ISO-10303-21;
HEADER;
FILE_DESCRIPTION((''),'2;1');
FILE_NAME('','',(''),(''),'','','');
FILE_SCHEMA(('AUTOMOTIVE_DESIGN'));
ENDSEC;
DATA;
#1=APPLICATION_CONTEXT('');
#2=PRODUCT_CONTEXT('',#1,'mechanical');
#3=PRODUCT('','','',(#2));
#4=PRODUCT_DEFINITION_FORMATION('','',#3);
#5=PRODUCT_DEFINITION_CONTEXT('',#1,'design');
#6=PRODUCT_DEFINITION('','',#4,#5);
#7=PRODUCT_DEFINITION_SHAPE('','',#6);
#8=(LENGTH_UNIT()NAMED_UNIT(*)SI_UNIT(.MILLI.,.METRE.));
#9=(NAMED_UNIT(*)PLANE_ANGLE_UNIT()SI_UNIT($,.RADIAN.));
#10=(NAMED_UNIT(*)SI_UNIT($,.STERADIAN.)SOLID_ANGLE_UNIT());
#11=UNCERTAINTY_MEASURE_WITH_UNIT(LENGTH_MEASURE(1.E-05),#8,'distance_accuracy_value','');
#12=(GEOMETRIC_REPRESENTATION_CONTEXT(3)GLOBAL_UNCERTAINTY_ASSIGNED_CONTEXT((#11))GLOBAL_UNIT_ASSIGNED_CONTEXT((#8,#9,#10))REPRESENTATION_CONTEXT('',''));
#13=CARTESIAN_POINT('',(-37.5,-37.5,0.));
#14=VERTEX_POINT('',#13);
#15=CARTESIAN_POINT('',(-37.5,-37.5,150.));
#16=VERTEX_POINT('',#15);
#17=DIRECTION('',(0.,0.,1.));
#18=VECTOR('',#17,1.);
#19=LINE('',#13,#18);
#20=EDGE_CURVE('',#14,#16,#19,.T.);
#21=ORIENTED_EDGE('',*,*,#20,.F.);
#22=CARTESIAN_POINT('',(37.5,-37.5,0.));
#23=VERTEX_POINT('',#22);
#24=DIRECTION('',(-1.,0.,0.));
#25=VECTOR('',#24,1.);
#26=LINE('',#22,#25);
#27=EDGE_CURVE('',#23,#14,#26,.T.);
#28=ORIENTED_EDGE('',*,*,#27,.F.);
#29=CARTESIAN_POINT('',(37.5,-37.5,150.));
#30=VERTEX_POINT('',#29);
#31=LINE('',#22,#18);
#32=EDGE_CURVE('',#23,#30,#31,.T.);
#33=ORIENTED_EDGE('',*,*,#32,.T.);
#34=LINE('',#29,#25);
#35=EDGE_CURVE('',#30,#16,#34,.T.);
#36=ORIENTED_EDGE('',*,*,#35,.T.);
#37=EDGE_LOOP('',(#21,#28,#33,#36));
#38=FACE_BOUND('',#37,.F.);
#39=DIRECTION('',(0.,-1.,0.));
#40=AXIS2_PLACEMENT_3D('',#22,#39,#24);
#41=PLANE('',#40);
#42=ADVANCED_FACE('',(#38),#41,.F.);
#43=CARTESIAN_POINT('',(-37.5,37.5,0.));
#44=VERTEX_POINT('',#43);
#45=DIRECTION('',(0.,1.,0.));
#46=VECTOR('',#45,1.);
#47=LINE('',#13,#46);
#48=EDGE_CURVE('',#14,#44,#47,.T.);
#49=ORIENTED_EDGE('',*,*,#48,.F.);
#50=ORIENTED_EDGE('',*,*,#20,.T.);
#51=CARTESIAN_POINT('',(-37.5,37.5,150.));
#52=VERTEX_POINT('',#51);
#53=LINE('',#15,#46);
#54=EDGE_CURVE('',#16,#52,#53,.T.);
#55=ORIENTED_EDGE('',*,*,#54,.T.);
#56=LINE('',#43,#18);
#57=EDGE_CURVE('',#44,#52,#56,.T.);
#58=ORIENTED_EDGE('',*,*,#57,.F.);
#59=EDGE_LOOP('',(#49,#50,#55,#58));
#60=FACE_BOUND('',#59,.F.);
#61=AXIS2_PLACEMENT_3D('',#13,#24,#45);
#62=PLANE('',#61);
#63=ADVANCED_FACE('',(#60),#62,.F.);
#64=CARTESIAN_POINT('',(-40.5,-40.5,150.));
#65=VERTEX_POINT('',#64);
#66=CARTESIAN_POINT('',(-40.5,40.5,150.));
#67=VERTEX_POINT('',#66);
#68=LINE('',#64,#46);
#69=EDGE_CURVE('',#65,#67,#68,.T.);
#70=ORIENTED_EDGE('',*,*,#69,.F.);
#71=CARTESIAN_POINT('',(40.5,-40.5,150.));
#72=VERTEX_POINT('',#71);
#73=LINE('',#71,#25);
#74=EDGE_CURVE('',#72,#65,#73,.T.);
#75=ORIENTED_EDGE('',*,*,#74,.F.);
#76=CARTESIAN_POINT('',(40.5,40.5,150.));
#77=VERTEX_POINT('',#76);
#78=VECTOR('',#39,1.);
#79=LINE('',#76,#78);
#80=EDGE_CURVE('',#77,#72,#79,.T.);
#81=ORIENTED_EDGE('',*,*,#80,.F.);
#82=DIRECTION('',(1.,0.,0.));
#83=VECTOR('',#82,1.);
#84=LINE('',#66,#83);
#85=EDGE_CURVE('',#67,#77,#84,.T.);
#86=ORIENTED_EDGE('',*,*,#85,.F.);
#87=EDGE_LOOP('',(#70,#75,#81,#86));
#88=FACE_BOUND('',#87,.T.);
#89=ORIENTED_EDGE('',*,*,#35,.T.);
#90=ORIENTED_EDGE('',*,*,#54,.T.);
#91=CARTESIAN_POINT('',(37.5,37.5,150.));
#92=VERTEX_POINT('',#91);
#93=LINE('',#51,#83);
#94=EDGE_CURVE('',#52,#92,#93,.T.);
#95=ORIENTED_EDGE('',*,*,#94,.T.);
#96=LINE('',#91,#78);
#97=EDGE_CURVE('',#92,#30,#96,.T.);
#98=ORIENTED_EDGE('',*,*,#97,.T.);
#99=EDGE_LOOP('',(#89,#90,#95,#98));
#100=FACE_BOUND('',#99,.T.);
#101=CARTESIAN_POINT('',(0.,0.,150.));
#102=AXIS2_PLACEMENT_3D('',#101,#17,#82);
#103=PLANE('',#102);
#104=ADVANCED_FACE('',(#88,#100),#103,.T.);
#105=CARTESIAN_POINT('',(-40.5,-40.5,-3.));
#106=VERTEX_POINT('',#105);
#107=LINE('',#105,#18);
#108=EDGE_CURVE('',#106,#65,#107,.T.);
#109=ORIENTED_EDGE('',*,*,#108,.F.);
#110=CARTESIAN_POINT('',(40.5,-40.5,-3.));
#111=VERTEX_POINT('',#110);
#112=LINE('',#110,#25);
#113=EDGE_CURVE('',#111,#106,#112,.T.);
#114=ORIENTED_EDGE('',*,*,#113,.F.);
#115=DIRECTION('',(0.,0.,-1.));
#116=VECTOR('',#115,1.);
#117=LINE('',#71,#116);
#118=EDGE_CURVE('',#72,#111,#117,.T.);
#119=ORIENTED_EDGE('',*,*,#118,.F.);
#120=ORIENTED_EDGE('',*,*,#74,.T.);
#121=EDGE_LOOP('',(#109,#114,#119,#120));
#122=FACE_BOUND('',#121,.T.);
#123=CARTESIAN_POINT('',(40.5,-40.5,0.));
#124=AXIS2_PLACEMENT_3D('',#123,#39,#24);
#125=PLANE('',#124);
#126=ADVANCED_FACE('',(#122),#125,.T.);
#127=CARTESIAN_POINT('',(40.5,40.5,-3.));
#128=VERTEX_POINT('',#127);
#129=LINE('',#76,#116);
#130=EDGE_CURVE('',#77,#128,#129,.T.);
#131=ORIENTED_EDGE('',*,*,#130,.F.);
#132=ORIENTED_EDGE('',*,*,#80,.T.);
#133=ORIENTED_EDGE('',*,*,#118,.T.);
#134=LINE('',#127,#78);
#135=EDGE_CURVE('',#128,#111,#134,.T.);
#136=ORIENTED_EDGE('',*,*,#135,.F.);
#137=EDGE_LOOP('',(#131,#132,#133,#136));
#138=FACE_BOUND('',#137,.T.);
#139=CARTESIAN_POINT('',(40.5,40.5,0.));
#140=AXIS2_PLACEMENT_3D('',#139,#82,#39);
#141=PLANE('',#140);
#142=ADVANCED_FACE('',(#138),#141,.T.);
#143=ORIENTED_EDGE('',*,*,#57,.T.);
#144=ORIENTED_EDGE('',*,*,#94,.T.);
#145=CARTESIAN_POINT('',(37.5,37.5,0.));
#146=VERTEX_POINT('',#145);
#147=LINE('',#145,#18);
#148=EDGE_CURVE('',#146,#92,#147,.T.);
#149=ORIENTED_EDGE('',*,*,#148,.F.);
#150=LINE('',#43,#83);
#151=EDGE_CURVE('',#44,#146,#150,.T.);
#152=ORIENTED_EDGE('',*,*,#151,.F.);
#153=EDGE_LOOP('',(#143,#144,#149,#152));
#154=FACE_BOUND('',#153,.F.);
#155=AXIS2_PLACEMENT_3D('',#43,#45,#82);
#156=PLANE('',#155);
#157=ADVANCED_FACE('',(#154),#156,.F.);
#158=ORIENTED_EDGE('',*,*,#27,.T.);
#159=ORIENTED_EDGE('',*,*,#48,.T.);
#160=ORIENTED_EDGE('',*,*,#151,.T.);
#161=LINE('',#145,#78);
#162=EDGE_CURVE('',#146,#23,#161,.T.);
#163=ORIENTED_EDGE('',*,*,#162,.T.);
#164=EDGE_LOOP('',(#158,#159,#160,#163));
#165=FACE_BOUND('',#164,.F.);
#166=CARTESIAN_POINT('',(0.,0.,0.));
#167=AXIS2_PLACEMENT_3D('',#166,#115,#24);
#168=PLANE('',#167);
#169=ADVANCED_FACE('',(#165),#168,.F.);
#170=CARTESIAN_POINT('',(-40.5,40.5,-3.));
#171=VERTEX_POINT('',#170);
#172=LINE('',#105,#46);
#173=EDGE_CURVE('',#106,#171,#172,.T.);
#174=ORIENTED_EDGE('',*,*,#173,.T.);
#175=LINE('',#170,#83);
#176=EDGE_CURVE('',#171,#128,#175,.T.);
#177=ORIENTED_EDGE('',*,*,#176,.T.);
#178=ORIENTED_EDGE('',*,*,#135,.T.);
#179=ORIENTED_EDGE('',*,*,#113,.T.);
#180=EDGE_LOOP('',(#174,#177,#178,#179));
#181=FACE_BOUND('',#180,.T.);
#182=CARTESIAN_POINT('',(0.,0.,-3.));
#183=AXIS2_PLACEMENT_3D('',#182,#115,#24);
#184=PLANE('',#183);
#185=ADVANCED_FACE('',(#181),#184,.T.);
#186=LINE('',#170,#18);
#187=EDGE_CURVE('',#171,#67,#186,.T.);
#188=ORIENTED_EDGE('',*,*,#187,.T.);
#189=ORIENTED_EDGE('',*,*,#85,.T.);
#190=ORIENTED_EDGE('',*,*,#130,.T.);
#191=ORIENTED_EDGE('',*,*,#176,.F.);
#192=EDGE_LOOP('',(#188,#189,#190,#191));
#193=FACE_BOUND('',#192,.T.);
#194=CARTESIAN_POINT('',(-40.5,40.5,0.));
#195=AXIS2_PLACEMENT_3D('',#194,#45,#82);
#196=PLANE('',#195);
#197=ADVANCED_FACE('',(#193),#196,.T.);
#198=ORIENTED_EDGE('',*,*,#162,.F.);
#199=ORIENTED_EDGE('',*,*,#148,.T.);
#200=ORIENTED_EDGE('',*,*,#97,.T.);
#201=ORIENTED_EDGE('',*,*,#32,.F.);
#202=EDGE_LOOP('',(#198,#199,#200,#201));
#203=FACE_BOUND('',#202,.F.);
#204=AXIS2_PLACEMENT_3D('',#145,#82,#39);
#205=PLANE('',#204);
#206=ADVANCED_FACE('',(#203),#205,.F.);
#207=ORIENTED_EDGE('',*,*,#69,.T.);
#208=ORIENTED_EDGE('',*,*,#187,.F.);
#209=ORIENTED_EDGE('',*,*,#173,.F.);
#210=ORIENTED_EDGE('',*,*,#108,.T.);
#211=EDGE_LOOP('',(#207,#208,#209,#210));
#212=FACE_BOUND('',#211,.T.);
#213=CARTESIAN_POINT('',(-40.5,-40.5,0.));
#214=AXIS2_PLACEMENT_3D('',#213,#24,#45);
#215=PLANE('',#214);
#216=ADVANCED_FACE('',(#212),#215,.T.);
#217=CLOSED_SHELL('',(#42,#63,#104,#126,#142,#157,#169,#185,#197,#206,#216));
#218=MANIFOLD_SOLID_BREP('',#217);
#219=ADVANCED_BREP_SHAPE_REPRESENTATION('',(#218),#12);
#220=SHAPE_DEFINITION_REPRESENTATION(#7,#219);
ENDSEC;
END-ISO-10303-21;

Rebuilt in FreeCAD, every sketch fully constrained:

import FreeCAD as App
import Part
import Sketcher


def add_polygon(sketch, points):
    """Adds a closed chain of lines whose ends are joined by coincident constraints."""
    first, n = sketch.GeometryCount, len(points)
    for a, b in zip(points, points[1:] + points[:1]):
        sketch.addGeometry(Part.LineSegment(App.Vector(*a, 0), App.Vector(*b, 0)), False)
    for i in range(n):
        sketch.addConstraint(Sketcher.Constraint("Coincident", first + i, 2, first + (i + 1) % n, 1))

doc = App.newDocument("Part")
body = doc.addObject("PartDesign::Body", "Body")

sketch1 = body.newObject("Sketcher::SketchObject", "Sketch")
sketch1.AttachmentSupport = (doc.getObject("XY_Plane"), [""])
sketch1.MapMode = "FlatFace"
add_polygon(sketch1, [(40, 40), (-40, 40), (-40, -40), (40, -40)])
add_polygon(sketch1, [(-38, -38), (-38, 38), (38, 38), (38, -38)])
sketch1.addConstraint(Sketcher.Constraint("Horizontal", 0))
sketch1.addConstraint(Sketcher.Constraint("Vertical", 1))
sketch1.addConstraint(Sketcher.Constraint("Horizontal", 2))
sketch1.addConstraint(Sketcher.Constraint("Vertical", 3))
sketch1.addConstraint(Sketcher.Constraint("Vertical", 4))
sketch1.addConstraint(Sketcher.Constraint("Horizontal", 5))
sketch1.addConstraint(Sketcher.Constraint("Vertical", 6))
sketch1.addConstraint(Sketcher.Constraint("Horizontal", 7))
sketch1.addConstraint(Sketcher.Constraint("Symmetric", 0, 2, 2, 2, -1, 1))
sketch1.addConstraint(Sketcher.Constraint("Symmetric", 4, 2, 6, 2, -1, 1))
sketch1.addConstraint(Sketcher.Constraint("Equal", 2, 1))
sketch1.addConstraint(Sketcher.Constraint("Equal", 7, 4))
sketch1.addConstraint(Sketcher.Constraint("DistanceX", 5, 1, 5, 2, 75.0))
sketch1.addConstraint(Sketcher.Constraint("DistanceX", 0, 2, 4, 2, 3.0))
pad1 = body.newObject("PartDesign::Pad", "Pad")
pad1.Profile = sketch1
pad1.Length = 150

sketch2 = body.newObject("Sketcher::SketchObject", "Sketch001")
sketch2.AttachmentSupport = (doc.getObject("XY_Plane"), [""])
sketch2.MapMode = "FlatFace"
add_polygon(sketch2, [(40, 40), (40, -40), (-40, -40), (-40, 40)])
sketch2.addConstraint(Sketcher.Constraint("Vertical", 0))
sketch2.addConstraint(Sketcher.Constraint("Horizontal", 1))
sketch2.addConstraint(Sketcher.Constraint("Vertical", 2))
sketch2.addConstraint(Sketcher.Constraint("Horizontal", 3))
sketch2.addConstraint(Sketcher.Constraint("Symmetric", 0, 2, 2, 2, -1, 1))
sketch2.addConstraint(Sketcher.Constraint("Equal", 3, 0))
sketch2.addConstraint(Sketcher.Constraint("DistanceX", 1, 2, 1, 1, 81.0))
pad2 = body.newObject("PartDesign::Pad", "Pad001")
pad2.Profile = sketch2
pad2.Length = 3
pad2.Reversed = True

doc.recompute()
